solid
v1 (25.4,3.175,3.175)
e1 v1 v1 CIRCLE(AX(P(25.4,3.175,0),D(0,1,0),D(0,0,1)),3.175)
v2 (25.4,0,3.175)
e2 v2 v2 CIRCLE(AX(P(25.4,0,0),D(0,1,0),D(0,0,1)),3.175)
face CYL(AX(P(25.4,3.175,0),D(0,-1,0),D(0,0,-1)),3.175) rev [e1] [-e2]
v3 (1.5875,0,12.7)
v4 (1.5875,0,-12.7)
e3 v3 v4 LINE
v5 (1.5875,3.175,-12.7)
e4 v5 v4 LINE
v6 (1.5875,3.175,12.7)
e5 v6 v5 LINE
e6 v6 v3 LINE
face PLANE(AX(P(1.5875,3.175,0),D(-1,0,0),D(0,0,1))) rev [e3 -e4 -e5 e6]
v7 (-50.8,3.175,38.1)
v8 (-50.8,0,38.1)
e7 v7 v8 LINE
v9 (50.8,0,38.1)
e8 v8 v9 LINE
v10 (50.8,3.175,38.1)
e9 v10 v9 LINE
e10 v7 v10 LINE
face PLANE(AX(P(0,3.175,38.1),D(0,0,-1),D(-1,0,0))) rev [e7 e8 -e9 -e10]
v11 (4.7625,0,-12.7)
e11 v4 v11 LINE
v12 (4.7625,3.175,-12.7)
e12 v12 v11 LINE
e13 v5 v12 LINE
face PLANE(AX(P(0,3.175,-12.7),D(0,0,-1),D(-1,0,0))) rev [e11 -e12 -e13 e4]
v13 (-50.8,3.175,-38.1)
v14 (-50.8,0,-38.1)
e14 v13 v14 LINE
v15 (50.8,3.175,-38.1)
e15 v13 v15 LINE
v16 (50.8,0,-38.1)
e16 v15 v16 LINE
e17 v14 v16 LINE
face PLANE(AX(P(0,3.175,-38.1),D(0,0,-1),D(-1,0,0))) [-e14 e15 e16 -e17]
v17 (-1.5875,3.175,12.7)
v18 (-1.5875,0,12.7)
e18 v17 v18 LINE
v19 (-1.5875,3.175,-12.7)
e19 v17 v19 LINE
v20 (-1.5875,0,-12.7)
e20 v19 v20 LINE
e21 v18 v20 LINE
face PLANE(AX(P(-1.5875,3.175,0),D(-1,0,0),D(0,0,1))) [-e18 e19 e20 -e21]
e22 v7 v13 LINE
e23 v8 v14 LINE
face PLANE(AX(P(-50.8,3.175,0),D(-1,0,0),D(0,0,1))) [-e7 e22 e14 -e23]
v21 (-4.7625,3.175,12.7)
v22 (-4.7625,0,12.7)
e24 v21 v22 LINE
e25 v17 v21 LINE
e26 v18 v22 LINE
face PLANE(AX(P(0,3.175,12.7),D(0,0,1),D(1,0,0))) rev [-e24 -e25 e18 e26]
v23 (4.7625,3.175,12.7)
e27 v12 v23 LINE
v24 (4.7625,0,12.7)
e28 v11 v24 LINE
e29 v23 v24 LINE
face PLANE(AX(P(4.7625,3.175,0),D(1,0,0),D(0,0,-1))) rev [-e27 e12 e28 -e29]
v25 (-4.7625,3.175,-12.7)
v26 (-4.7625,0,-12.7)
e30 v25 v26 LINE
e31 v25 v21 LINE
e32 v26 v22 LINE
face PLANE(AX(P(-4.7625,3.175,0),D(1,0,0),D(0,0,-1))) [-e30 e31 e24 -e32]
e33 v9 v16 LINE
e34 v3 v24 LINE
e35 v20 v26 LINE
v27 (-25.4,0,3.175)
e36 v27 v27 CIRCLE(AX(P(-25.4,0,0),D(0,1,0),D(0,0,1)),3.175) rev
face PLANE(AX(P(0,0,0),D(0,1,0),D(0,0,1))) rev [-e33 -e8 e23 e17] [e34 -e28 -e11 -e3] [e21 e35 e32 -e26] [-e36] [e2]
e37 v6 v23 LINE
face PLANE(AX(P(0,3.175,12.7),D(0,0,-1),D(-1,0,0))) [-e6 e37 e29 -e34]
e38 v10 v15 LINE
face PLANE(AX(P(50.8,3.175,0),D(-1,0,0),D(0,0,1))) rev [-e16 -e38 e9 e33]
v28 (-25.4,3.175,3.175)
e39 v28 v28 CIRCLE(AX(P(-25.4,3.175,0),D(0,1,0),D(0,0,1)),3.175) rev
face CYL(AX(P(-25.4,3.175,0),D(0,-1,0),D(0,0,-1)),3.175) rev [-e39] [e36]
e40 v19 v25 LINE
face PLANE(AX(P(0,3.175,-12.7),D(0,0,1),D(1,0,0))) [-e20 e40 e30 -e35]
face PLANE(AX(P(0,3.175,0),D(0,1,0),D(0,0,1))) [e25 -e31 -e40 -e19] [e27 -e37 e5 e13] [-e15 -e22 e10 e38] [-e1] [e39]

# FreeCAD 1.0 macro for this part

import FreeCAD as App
import Part
import Sketcher
from FreeCAD import Vector
Q = App.Units.Quantity

doc = App.newDocument("Part")
body = doc.addObject("PartDesign::Body", "Body")

# Sketch on XZ plane
sketch1 = body.newObject("Sketcher::SketchObject", "Sketch")
sketch1.AttachmentSupport = (doc.getObject("XZ_Plane"), [""])
sketch1.MapMode = "FlatFace"
sketch1.addGeometry(Part.LineSegment(Vector(-50.8, -38.1, 0), Vector(-50.8, 38.1, 0)), False)
sketch1.addGeometry(Part.LineSegment(Vector(-50.8, 38.1, 0), Vector(50.8, 38.1, 0)), False)
sketch1.addGeometry(Part.LineSegment(Vector(50.8, 38.1, 0), Vector(50.8, -38.1, 0)), False)
sketch1.addGeometry(Part.LineSegment(Vector(50.8, -38.1, 0), Vector(-50.8, -38.1, 0)), False)
sketch1.addGeometry(Part.Circle(Vector(-25.4, 0, 0), Vector(0, 0, 1), 3.2), False)
sketch1.addGeometry(Part.LineSegment(Vector(-1.6, 12.7, 0), Vector(-4.8, 12.7, 0)), False)
sketch1.addGeometry(Part.LineSegment(Vector(-4.8, 12.7, 0), Vector(-4.8, -12.7, 0)), False)
sketch1.addGeometry(Part.LineSegment(Vector(-4.8, -12.7, 0), Vector(-1.6, -12.7, 0)), False)
sketch1.addGeometry(Part.LineSegment(Vector(-1.6, -12.7, 0), Vector(-1.6, 12.7, 0)), False)
sketch1.addGeometry(Part.LineSegment(Vector(4.8, 12.7, 0), Vector(1.6, 12.7, 0)), False)
sketch1.addGeometry(Part.LineSegment(Vector(1.6, 12.7, 0), Vector(1.6, -12.7, 0)), False)
sketch1.addGeometry(Part.LineSegment(Vector(1.6, -12.7, 0), Vector(4.8, -12.7, 0)), False)
sketch1.addGeometry(Part.LineSegment(Vector(4.8, -12.7, 0), Vector(4.8, 12.7, 0)), False)
sketch1.addGeometry(Part.Circle(Vector(25.4, 0, 0), Vector(0, 0, 1), 3.2), False)
sketch1.addConstraint(Sketcher.Constraint("Coincident", 0, 2, 1, 1))
sketch1.addConstraint(Sketcher.Constraint("Coincident", 1, 2, 2, 1))
sketch1.addConstraint(Sketcher.Constraint("Coincident", 2, 2, 3, 1))
sketch1.addConstraint(Sketcher.Constraint("Coincident", 3, 2, 0, 1))
sketch1.addConstraint(Sketcher.Constraint("Coincident", 5, 2, 6, 1))
sketch1.addConstraint(Sketcher.Constraint("Coincident", 6, 2, 7, 1))
sketch1.addConstraint(Sketcher.Constraint("Coincident", 7, 2, 8, 1))
sketch1.addConstraint(Sketcher.Constraint("Coincident", 8, 2, 5, 1))
sketch1.addConstraint(Sketcher.Constraint("Coincident", 9, 2, 10, 1))
sketch1.addConstraint(Sketcher.Constraint("Coincident", 10, 2, 11, 1))
sketch1.addConstraint(Sketcher.Constraint("Coincident", 11, 2, 12, 1))
sketch1.addConstraint(Sketcher.Constraint("Coincident", 12, 2, 9, 1))
sketch1.addConstraint(Sketcher.Constraint("Vertical", 0))
sketch1.addConstraint(Sketcher.Constraint("Horizontal", 1))
sketch1.addConstraint(Sketcher.Constraint("Vertical", 2))
sketch1.addConstraint(Sketcher.Constraint("Horizontal", 3))
sketch1.addConstraint(Sketcher.Constraint("Horizontal", 5))
sketch1.addConstraint(Sketcher.Constraint("Vertical", 6))
sketch1.addConstraint(Sketcher.Constraint("Horizontal", 7))
sketch1.addConstraint(Sketcher.Constraint("Vertical", 8))
sketch1.addConstraint(Sketcher.Constraint("Horizontal", 9))
sketch1.addConstraint(Sketcher.Constraint("Vertical", 10))
sketch1.addConstraint(Sketcher.Constraint("Horizontal", 11))
sketch1.addConstraint(Sketcher.Constraint("Vertical", 12))
sketch1.addConstraint(Sketcher.Constraint("Equal", 4, 13))
sketch1.addConstraint(Sketcher.Constraint("Symmetric", 4, 3, 13, 3, -1, 1))
sketch1.addConstraint(Sketcher.Constraint("Symmetric", 0, 2, 2, 2, -1, 1))
sketch1.addConstraint(Sketcher.Constraint("Symmetric", 7, 2, 9, 2, -1, 1))
sketch1.addConstraint(Sketcher.Constraint("Symmetric", 5, 2, 11, 2, -1, 1))
sketch1.addConstraint(Sketcher.Constraint("PointOnObject", 4, 3, -1))
sketch1.addConstraint(Sketcher.Constraint("Horizontal", 8, 2, 9, 2))
sketch1.addConstraint(Sketcher.Constraint("Diameter", 4, Q("0.25 in")))
sketch1.addConstraint(Sketcher.Constraint("DistanceX", 1, 1, 1, 2, Q("4 in")))
sketch1.addConstraint(Sketcher.Constraint("DistanceY", 0, 1, 0, 2, Q("3 in")))
sketch1.addConstraint(Sketcher.Constraint("DistanceY", 6, 2, 6, 1, Q("1 in")))
sketch1.addConstraint(Sketcher.Constraint("DistanceX", 4, 3, -1, 1, Q("1 in")))
sketch1.addConstraint(Sketcher.Constraint("DistanceX", 5, 2, 5, 1, Q("0.125 in")))
sketch1.addConstraint(Sketcher.Constraint("DistanceX", 5, 2, 9, 2, Q("0.25 in")))
pad1 = body.newObject("PartDesign::Pad", "Pad")
pad1.Profile = sketch1
pad1.Length = Q("0.125 in")
pad1.Reversed = True

doc.recompute()
